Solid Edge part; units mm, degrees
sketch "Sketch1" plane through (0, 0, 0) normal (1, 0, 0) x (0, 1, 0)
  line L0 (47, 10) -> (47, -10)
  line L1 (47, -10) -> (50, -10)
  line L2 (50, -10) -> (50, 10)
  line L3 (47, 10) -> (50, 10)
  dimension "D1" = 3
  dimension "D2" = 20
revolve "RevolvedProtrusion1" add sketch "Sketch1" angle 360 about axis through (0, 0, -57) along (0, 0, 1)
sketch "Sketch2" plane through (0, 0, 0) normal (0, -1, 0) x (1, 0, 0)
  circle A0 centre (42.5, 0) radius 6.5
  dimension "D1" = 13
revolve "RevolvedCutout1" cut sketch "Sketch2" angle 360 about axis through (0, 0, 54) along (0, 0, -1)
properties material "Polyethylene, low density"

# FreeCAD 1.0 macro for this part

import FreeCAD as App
import Part
import Sketcher
from FreeCAD import Vector


def add_polygon(sketch, points):
    """Adds a closed chain of lines whose ends are joined by coincident constraints."""
    first, n = sketch.GeometryCount, len(points)
    for a, b in zip(points, points[1:] + points[:1]):
        sketch.addGeometry(Part.LineSegment(App.Vector(*a, 0), App.Vector(*b, 0)), False)
    for i in range(n):
        sketch.addConstraint(Sketcher.Constraint("Coincident", first + i, 2, first + (i + 1) % n, 1))

doc = App.newDocument("Part")
body = doc.addObject("PartDesign::Body", "Body")

# Sketch on YZ plane
sketch1 = body.newObject("Sketcher::SketchObject", "Sketch")
sketch1.AttachmentSupport = (doc.getObject("YZ_Plane"), [""])
sketch1.MapMode = "FlatFace"
add_polygon(sketch1, [(50, 10), (47, 10), (47, -10), (50, -10)])  # lines 0-3
sketch1.addConstraint([
    Sketcher.Constraint("Horizontal", 0),
    Sketcher.Constraint("Vertical", 1),
    Sketcher.Constraint("Horizontal", 2),
    Sketcher.Constraint("Vertical", 3),
    Sketcher.Constraint("DistanceX", -1, 1, 0, 2, 47.0),
    Sketcher.Constraint("DistanceX", -1, 1, 2, 2, 50.0),
    Sketcher.Constraint("DistanceY", 1, 2, 1, 1, 20.0),
    Sketcher.Constraint("DistanceY", -1, 1, 0, 2, 10.0),
])
revolution = body.newObject("PartDesign::Revolution", "Revolution")
revolution.Profile = sketch1
revolution.ReferenceAxis = (sketch1, ["V_Axis"])
revolution.Angle = 360

# Sketch on XZ plane
sketch2 = body.newObject("Sketcher::SketchObject", "Sketch001")
sketch2.AttachmentSupport = (doc.getObject("XZ_Plane"), [""])
sketch2.MapMode = "FlatFace"
sketch2.addGeometry(Part.Circle(Vector(42, 0, 0), Vector(0, 0, 1), 6), False)
sketch2.addConstraint([
    Sketcher.Constraint("PointOnObject", 0, 3, -1),
    Sketcher.Constraint("Diameter", 0, 13.0),
    Sketcher.Constraint("DistanceX", -1, 1, 0, 3, 42.5),
])
groove = body.newObject("PartDesign::Groove", "Groove")
groove.Profile = sketch2
groove.ReferenceAxis = (sketch2, ["V_Axis"])
groove.Angle = 360

doc.recompute()
